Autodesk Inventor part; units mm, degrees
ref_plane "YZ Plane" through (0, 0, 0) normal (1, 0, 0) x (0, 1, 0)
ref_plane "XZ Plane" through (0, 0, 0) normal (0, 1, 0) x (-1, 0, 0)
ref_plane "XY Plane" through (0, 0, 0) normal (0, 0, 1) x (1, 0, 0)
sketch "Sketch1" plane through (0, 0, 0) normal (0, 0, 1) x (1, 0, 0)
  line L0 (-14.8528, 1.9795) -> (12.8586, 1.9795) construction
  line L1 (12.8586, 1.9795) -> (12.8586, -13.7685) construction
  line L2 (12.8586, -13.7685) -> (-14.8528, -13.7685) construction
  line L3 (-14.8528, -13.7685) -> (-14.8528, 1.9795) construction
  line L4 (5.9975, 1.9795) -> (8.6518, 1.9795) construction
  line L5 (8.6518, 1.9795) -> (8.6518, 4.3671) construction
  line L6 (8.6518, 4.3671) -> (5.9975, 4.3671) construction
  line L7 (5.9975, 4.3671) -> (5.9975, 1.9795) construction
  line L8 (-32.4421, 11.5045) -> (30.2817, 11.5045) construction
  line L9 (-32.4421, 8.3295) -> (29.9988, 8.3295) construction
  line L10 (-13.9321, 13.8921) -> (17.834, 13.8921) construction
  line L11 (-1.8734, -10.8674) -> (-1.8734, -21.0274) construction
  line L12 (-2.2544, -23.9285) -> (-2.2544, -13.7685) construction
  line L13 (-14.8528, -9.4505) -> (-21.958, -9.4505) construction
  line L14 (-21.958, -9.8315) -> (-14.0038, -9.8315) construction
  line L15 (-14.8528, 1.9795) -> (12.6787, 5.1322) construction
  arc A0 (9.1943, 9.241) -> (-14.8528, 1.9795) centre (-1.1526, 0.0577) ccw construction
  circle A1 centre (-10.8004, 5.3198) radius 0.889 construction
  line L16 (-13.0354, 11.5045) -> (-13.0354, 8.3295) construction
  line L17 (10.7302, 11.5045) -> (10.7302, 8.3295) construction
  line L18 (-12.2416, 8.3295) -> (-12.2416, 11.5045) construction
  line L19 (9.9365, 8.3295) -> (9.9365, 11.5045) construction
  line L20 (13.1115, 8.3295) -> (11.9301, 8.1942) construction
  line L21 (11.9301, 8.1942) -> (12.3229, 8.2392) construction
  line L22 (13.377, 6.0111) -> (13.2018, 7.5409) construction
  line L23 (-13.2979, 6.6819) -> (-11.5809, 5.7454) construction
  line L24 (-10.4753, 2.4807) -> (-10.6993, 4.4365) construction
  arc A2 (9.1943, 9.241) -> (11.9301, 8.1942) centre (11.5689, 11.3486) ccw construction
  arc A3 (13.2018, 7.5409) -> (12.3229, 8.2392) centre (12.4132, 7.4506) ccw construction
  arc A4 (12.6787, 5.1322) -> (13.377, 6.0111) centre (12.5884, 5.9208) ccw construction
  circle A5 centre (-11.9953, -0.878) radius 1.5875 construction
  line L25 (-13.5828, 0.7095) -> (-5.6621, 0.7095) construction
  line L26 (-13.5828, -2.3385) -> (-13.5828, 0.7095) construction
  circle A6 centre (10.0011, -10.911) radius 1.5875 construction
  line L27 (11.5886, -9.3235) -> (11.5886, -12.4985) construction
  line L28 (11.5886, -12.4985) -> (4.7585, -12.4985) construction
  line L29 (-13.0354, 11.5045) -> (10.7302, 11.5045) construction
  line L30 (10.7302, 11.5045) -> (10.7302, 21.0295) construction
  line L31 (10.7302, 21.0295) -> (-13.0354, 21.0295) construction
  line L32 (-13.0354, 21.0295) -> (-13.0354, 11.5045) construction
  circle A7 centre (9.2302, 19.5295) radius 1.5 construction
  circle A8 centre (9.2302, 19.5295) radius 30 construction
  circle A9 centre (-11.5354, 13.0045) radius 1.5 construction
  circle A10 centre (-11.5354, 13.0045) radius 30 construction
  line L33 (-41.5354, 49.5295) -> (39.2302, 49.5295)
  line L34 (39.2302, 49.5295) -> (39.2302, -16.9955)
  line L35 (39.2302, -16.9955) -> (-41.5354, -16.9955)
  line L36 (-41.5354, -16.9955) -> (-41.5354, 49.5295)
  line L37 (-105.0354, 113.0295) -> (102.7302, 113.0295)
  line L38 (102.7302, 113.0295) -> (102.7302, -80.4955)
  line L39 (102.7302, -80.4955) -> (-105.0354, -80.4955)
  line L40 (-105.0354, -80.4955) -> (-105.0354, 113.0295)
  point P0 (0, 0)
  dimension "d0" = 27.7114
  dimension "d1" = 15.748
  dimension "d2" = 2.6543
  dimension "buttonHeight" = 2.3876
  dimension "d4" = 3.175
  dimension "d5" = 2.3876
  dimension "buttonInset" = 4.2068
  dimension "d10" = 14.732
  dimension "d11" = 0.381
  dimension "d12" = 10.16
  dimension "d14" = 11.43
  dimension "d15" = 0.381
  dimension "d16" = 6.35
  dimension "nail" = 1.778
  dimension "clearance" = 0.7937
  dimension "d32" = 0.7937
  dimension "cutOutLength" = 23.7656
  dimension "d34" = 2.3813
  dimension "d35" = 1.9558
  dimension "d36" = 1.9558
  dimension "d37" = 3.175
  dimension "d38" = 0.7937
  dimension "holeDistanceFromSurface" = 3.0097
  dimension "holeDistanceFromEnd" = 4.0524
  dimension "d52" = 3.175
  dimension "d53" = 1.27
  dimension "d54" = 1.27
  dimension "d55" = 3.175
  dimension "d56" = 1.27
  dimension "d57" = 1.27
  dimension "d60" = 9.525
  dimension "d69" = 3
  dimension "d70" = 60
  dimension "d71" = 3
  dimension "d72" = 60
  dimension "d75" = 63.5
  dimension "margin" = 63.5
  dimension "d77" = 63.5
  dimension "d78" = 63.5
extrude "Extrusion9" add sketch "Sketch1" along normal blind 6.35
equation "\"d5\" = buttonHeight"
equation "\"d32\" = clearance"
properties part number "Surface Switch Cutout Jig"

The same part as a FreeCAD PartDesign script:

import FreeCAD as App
import Part
import Sketcher

V = App.Vector
Q = App.Units.Quantity


def add_polygon(sketch, points):
    """Adds a closed chain of lines whose ends are joined by coincident constraints."""
    first, n = sketch.GeometryCount, len(points)
    for a, b in zip(points, points[1:] + points[:1]):
        sketch.addGeometry(Part.LineSegment(App.Vector(*a, 0), App.Vector(*b, 0)), False)
    for i in range(n):
        sketch.addConstraint(Sketcher.Constraint("Coincident", first + i, 2, first + (i + 1) % n, 1))

doc = App.newDocument("Part")
body = doc.addObject("PartDesign::Body", "Body")

# Sketch on XY plane
sketch1 = doc.addObject("Sketcher::SketchObject", "Sketch")
body.addObject(sketch1)
sketch1.AttachmentSupport = (doc.XY_Plane, [""])
sketch1.MapMode = "FlatFace"
add_polygon(sketch1, [(102.7302, 113.0295), (-105.0354, 113.0295), (-105.0354, -80.4955), (102.7302, -80.4955)])  # lines 0-3
add_polygon(sketch1, [(-41.5354, -16.9955), (-41.5354, 49.5295), (39.2302, 49.5295), (39.2302, -16.9955)])  # lines 4-7
sketch1.addConstraint(Sketcher.Constraint("Horizontal", 0))
sketch1.addConstraint(Sketcher.Constraint("Vertical", 1))
sketch1.addConstraint(Sketcher.Constraint("Horizontal", 2))
sketch1.addConstraint(Sketcher.Constraint("Vertical", 3))
sketch1.addConstraint(Sketcher.Constraint("Vertical", 4))
sketch1.addConstraint(Sketcher.Constraint("Horizontal", 5))
sketch1.addConstraint(Sketcher.Constraint("Vertical", 6))
sketch1.addConstraint(Sketcher.Constraint("Horizontal", 7))
sketch1.addConstraint(Sketcher.Constraint("DistanceX", 0, 2, 4, 2, Q("2.5 in")))
sketch1.addConstraint(Sketcher.Constraint("DistanceY", 4, 2, 0, 2, Q("2.5 in")))
sketch1.addConstraint(Sketcher.Constraint("DistanceX", 5, 2, 3, 2, Q("2.5 in")))
sketch1.addConstraint(Sketcher.Constraint("DistanceY", 2, 2, 6, 2, Q("2.5 in")))
sketch1.addConstraint(Sketcher.Constraint("DistanceY", 1, 2, 1, 1, Q("7.6191 in")))
sketch1.addConstraint(Sketcher.Constraint("DistanceX", 0, 2, 0, 1, 207.7656))
sketch1.addConstraint(Sketcher.Constraint("DistanceX", -1, 1, 2, 2, Q("4.0445 in")))
sketch1.addConstraint(Sketcher.Constraint("DistanceY", -1, 1, 0, 2, 113.0295))
pad1 = doc.addObject("PartDesign::Pad", "Pad")
body.addObject(pad1)
pad1.Profile = sketch1
pad1.Length = Q("0.25 in")

doc.recompute()
